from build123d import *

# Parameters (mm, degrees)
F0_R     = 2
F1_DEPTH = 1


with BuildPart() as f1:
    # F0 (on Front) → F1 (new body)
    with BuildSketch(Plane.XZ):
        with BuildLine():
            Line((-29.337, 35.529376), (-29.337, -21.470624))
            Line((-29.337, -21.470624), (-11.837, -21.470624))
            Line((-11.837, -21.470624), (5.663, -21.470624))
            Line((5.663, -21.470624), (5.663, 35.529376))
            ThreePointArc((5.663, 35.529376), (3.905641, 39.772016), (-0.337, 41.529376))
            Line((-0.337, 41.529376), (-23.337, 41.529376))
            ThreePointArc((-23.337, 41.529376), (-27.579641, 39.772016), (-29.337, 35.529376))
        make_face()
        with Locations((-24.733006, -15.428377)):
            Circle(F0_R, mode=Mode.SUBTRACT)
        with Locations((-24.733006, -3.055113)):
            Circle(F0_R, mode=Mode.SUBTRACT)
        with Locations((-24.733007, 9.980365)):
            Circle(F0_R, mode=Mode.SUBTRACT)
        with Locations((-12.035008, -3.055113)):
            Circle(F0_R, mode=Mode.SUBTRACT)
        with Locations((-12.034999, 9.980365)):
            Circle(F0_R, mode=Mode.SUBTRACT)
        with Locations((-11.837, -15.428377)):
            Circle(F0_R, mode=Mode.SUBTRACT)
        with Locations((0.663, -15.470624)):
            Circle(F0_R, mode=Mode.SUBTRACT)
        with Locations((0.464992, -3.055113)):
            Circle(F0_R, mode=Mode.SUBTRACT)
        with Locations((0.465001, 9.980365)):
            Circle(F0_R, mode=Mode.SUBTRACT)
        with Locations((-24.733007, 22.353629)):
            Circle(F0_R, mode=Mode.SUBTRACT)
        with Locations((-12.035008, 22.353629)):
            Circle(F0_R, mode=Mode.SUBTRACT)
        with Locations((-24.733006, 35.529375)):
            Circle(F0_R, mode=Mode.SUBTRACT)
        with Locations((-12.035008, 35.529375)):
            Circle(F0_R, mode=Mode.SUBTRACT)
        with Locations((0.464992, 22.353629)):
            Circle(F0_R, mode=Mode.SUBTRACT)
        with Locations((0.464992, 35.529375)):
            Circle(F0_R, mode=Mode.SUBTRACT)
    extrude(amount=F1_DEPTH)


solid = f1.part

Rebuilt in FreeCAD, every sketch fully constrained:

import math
import FreeCAD as App
import Part
import Sketcher

V = App.Vector
Q = App.Units.Quantity

doc = App.newDocument("Part")
body = doc.addObject("PartDesign::Body", "Body")

# Sketch on XZ plane
sketch1 = body.newObject("Sketcher::SketchObject", "Sketch")
sketch1.AttachmentSupport = (doc.getObject("XZ_Plane"), [""])
sketch1.MapMode = "FlatFace"
sketch1.addGeometry([
    Part.LineSegment(V(-29.3, 35.5, 0), V(-29.3, -21.5, 0)),  # 0
    Part.LineSegment(V(-29.3, -21.5, 0), V(5.7, -21.5, 0)),  # 1
    Part.LineSegment(V(5.7, -21.5, 0), V(5.7, 35.5, 0)),  # 2
    Part.ArcOfCircle(Part.Circle(V(-0.3, 35.5, 0), V(0, 0, 1), 6), math.radians(0), math.radians(90)),  # 3
    Part.LineSegment(V(-0.3, 41.5, 0), V(-23.3, 41.5, 0)),  # 4
    Part.ArcOfCircle(Part.Circle(V(-23.3, 35.5, 0), V(0, 0, 1), 6), math.radians(90), math.radians(180)),  # 5
    Part.Circle(V(-24.7, -15.4, 0), V(0, 0, 1), 2),  # 6
    Part.Circle(V(-24.7, -3.1, 0), V(0, 0, 1), 2),  # 7
    Part.Circle(V(-24.7, 10, 0), V(0, 0, 1), 2),  # 8
    Part.Circle(V(-12, -3.1, 0), V(0, 0, 1), 2),  # 9
    Part.Circle(V(-11.8, -15.4, 0), V(0, 0, 1), 2),  # 10
    Part.Circle(V(0.7, -15.5, 0), V(0, 0, 1), 2),  # 11
    Part.Circle(V(-12, 10, 0), V(0, 0, 1), 2),  # 12
    Part.Circle(V(0.5, -3.1, 0), V(0, 0, 1), 2),  # 13
    Part.Circle(V(0.5, 10, 0), V(0, 0, 1), 2),  # 14
    Part.Circle(V(-24.7, 22.4, 0), V(0, 0, 1), 2),  # 15
    Part.Circle(V(-12, 22.4, 0), V(0, 0, 1), 2),  # 16
    Part.Circle(V(-24.7, 35.5, 0), V(0, 0, 1), 2),  # 17
    Part.Circle(V(-12, 35.5, 0), V(0, 0, 1), 2),  # 18
    Part.Circle(V(0.5, 22.4, 0), V(0, 0, 1), 2),  # 19
    Part.Circle(V(0.5, 35.5, 0), V(0, 0, 1), 2),  # 20
], False)
sketch1.addConstraint([
    Sketcher.Constraint("Coincident", 0, 2, 1, 1),
    Sketcher.Constraint("Coincident", 1, 2, 2, 1),
    Sketcher.Constraint("Tangent", 2, 2, 3, 1),
    Sketcher.Constraint("Tangent", 3, 2, 4, 1),
    Sketcher.Constraint("Tangent", 4, 2, 5, 1),
    Sketcher.Constraint("Tangent", 5, 2, 0, 1),
    Sketcher.Constraint("Vertical", 0),
    Sketcher.Constraint("Horizontal", 1),
    Sketcher.Constraint("Vertical", 2),
    Sketcher.Constraint("Horizontal", 4),
    Sketcher.Constraint("Equal", 3, 5),
    Sketcher.Constraint("Equal", 6, 7),
    Sketcher.Constraint("Equal", 7, 8),
    Sketcher.Constraint("Equal", 8, 9),
    Sketcher.Constraint("Equal", 9, 10),
    Sketcher.Constraint("Equal", 10, 11),
    Sketcher.Constraint("Equal", 11, 12),
    Sketcher.Constraint("Equal", 12, 13),
    Sketcher.Constraint("Equal", 13, 14),
    Sketcher.Constraint("Equal", 14, 15),
    Sketcher.Constraint("Equal", 15, 16),
    Sketcher.Constraint("Equal", 16, 17),
    Sketcher.Constraint("Equal", 17, 18),
    Sketcher.Constraint("Equal", 18, 19),
    Sketcher.Constraint("Equal", 19, 20),
    Sketcher.Constraint("Horizontal", 7, 3, 9, 3),
    Sketcher.Constraint("Horizontal", 6, 3, 10, 3),
    Sketcher.Constraint("Horizontal", 8, 3, 12, 3),
    Sketcher.Constraint("Horizontal", 9, 3, 13, 3),
    Sketcher.Constraint("Horizontal", 12, 3, 14, 3),
    Sketcher.Constraint("Horizontal", 15, 3, 16, 3),
    Sketcher.Constraint("Horizontal", 5, 3, 17, 3),
    Sketcher.Constraint("Horizontal", 17, 3, 18, 3),
    Sketcher.Constraint("Horizontal", 16, 3, 19, 3),
    Sketcher.Constraint("Horizontal", 18, 3, 20, 3),
    Sketcher.Constraint("Vertical", 6, 3, 7, 3),
    Sketcher.Constraint("Vertical", 7, 3, 8, 3),
    Sketcher.Constraint("Vertical", 8, 3, 15, 3),
    Sketcher.Constraint("Vertical", 9, 3, 16, 3),
    Sketcher.Constraint("Vertical", 15, 3, 17, 3),
    Sketcher.Constraint("Vertical", 16, 3, 18, 3),
    Sketcher.Constraint("Vertical", 13, 3, 19, 3),
    Sketcher.Constraint("Vertical", 19, 3, 20, 3),
    Sketcher.Constraint("Diameter", 6, Q("4 mm")),
    Sketcher.Constraint("Radius", 3, Q("6.000001 mm")),
    Sketcher.Constraint("DistanceX", 1, 1, 1, 2, Q("35 mm")),
    Sketcher.Constraint("DistanceY", 0, 2, 0, 1, Q("57 mm")),
    Sketcher.Constraint("DistanceX", 0, 2, 11, 3, Q("30 mm")),
    Sketcher.Constraint("DistanceY", 0, 2, 11, 3, Q("6 mm")),
    Sketcher.Constraint("DistanceX", 10, 3, 3, 3, Q("11.499999 mm")),
    Sketcher.Constraint("DistanceX", 9, 3, 13, 3, Q("12.5 mm")),
    Sketcher.Constraint("DistanceX", 12, 3, 14, 3, Q("12.5 mm")),
    Sketcher.Constraint("DistanceX", 3, 3, -1, 1, Q("0.337001 mm")),
    Sketcher.Constraint("DistanceX", 12, 3, -1, 1, Q("12.034999 mm")),
    Sketcher.Constraint("DistanceX", 8, 3, 9, 3, Q("12.697999 mm")),
    Sketcher.Constraint("DistanceY", -1, 1, 15, 3, Q("22.353629 mm")),
    Sketcher.Constraint("DistanceY", 7, 3, 5, 3, Q("38.584488 mm")),
    Sketcher.Constraint("DistanceY", 7, 3, 8, 3, Q("13.035478 mm")),
    Sketcher.Constraint("DistanceY", 6, 3, 8, 3, Q("25.408742 mm")),
    Sketcher.Constraint("DistanceX", 5, 3, 9, 3, Q("11.301991 mm")),
    Sketcher.Constraint("DistanceY", 7, 3, 15, 3, Q("25.408742 mm")),
])
pad1 = body.newObject("PartDesign::Pad", "Pad")
pad1.Profile = sketch1
pad1.Length = 1

doc.recompute()
